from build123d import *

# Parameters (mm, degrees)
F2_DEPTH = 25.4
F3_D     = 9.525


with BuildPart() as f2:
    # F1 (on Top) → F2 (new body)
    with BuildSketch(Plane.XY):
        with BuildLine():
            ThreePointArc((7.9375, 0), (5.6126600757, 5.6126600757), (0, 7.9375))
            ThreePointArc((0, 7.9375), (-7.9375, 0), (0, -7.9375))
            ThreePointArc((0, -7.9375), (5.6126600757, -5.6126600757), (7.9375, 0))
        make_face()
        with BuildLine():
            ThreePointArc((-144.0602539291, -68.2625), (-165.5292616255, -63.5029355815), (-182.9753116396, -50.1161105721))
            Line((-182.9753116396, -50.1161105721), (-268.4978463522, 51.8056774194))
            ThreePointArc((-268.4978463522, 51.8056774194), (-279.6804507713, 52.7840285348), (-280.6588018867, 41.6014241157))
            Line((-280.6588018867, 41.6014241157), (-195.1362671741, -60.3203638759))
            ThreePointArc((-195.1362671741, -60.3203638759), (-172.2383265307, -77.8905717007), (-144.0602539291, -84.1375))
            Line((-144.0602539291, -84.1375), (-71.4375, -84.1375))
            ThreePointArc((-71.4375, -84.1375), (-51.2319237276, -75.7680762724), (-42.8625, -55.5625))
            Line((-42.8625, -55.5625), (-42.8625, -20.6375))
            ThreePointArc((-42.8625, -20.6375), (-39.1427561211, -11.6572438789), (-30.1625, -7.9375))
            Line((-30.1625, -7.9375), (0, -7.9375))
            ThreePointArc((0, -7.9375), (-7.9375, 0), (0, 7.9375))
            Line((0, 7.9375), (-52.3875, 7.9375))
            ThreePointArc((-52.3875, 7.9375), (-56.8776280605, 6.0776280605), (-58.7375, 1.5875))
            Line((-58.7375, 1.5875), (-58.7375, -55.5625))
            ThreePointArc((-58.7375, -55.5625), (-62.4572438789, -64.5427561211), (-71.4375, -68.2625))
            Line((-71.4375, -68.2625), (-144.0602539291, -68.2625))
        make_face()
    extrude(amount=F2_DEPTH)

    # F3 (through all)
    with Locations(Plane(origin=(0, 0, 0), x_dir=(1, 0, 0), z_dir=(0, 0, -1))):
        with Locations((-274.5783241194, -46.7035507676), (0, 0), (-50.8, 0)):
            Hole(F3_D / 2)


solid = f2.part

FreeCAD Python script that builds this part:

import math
import FreeCAD as App
import Part
import Sketcher
from FreeCAD import Vector
Q = App.Units.Quantity

doc = App.newDocument("Part")
params = doc.addObject("Spreadsheet::Sheet", "Params")
for row, (alias, value) in enumerate([
    ("sketch1_radius", "2 in"),
    ("sketch1_radius2", "0.5 in"),
    ("sketch1_radius3", "0.25 in"),
    ("sketch1_radius4", "0.3125 in"),
    ("sketch1_height", "2.25 in"),
    ("pad1_length", "1 in"),
    ("sketch2_diameter", "0.375 in"),
    ("hole_diameter", "0.375 in"),
], start=1):
    params.set(f"A{row}", alias)
    params.set(f"B{row}", "=" + value)
    params.setAlias(f"B{row}", alias)

body = doc.addObject("PartDesign::Body", "Body")

# Sketch on XY plane
sketch1 = body.newObject("Sketcher::SketchObject", "Sketch")
sketch1.AttachmentSupport = (doc.getObject("XY_Plane"), [""])
sketch1.MapMode = "FlatFace"
sketch1.addGeometry([
    Part.ArcOfCircle(Part.Circle(Vector(0, 0, 0), Vector(0, 0, 1), 7.9375), math.radians(0), math.radians(90)),  # 0
    Part.LineSegment(Vector(0, 7.9375, 0), Vector(-52.3875, 7.9375, 0)),  # 1
    Part.ArcOfCircle(Part.Circle(Vector(-52.3875, 1.5875, 0), Vector(0, 0, 1), 6.35), math.radians(90), math.radians(180)),  # 2
    Part.LineSegment(Vector(-58.7375, 1.5875, 0), Vector(-58.7375, -55.5625, 0)),  # 3
    Part.ArcOfCircle(Part.Circle(Vector(-71.4375, -55.5625, 0), Vector(0, 0, 1), 12.7), math.radians(-90), math.radians(0)),  # 4
    Part.LineSegment(Vector(-71.4375, -68.2625, 0), Vector(-144.060254, -68.2625, 0)),  # 5
    Part.ArcOfCircle(Part.Circle(Vector(-144.060254, -17.4625, 0), Vector(0, 0, 1), 50.8), math.radians(-140), math.radians(-90)),  # 6
    Part.LineSegment(Vector(-182.975312, -50.116111, 0), Vector(-268.497846, 51.805677, 0)),  # 7
    Part.ArcOfCircle(Part.Circle(Vector(-274.578324, 46.703551, 0), Vector(0, 0, 1), 7.9375), math.radians(40), math.radians(220)),  # 8
    Part.LineSegment(Vector(-280.658802, 41.601424, 0), Vector(-195.136267, -60.320364, 0)),  # 9
    Part.ArcOfCircle(Part.Circle(Vector(-144.060254, -17.4625, 0), Vector(0, 0, 1), 66.675), math.radians(-140), math.radians(-90)),  # 10
    Part.LineSegment(Vector(-144.060254, -84.1375, 0), Vector(-71.4375, -84.1375, 0)),  # 11
    Part.ArcOfCircle(Part.Circle(Vector(-71.4375, -55.5625, 0), Vector(0, 0, 1), 28.575), math.radians(-90), math.radians(0)),  # 12
    Part.LineSegment(Vector(-42.8625, -55.5625, 0), Vector(-42.8625, -20.6375, 0)),  # 13
    Part.ArcOfCircle(Part.Circle(Vector(-30.1625, -20.6375, 0), Vector(0, 0, 1), 12.7), math.radians(90), math.radians(180)),  # 14
    Part.LineSegment(Vector(-30.1625, -7.9375, 0), Vector(0, -7.9375, 0)),  # 15
    Part.ArcOfCircle(Part.Circle(Vector(0, 0, 0), Vector(0, 0, 1), 7.9375), math.radians(-90), math.radians(0)),  # 16
], False)
sketch1.addConstraint([
    Sketcher.Constraint("Tangent", 0, 2, 1, 1),
    Sketcher.Constraint("Tangent", 1, 2, 2, 1),
    Sketcher.Constraint("Tangent", 2, 2, 3, 1),
    Sketcher.Constraint("Tangent", 3, 2, 4, 2),
    Sketcher.Constraint("Tangent", 4, 1, 5, 1),
    Sketcher.Constraint("Tangent", 5, 2, 6, 2),
    Sketcher.Constraint("Tangent", 6, 1, 7, 1),
    Sketcher.Constraint("Tangent", 7, 2, 8, 1),
    Sketcher.Constraint("Tangent", 8, 2, 9, 1),
    Sketcher.Constraint("Tangent", 9, 2, 10, 1),
    Sketcher.Constraint("Tangent", 10, 2, 11, 1),
    Sketcher.Constraint("Tangent", 11, 2, 12, 1),
    Sketcher.Constraint("Tangent", 12, 2, 13, 1),
    Sketcher.Constraint("Tangent", 13, 2, 14, 2),
    Sketcher.Constraint("Tangent", 14, 1, 15, 1),
    Sketcher.Constraint("Tangent", 15, 2, 16, 1),
    Sketcher.Constraint("Tangent", 16, 2, 0, 1),
    Sketcher.Constraint("Horizontal", 1),
    Sketcher.Constraint("Vertical", 3),
    Sketcher.Constraint("Horizontal", 5),
    Sketcher.Constraint("Horizontal", 11),
    Sketcher.Constraint("Vertical", 13),
    Sketcher.Constraint("Horizontal", 15),
    Sketcher.Constraint("Coincident", 0, 3, -1, 1),
    Sketcher.Constraint("Coincident", 10, 3, 6, 3),
    Sketcher.Constraint("Coincident", 12, 3, 4, 3),
    Sketcher.Constraint("Equal", 0, 8),
    Sketcher.Constraint("Equal", 4, 14),
    Sketcher.Constraint("Equal", 8, 16),
    Sketcher.Constraint("PointOnObject", 16, 2, -1),
    Sketcher.Constraint("Parallel", 7, 9),
    Sketcher.Constraint("Radius", 6, Q("2 in")),
    Sketcher.Constraint("Radius", 4, Q("0.5 in")),
    Sketcher.Constraint("Radius", 2, Q("0.25 in")),
    Sketcher.Constraint("Angle", 7, Q("130 deg")),
    Sketcher.Constraint("Radius", 0, Q("0.3125 in")),
    Sketcher.Constraint("DistanceY", 3, 2, 3, 1, Q("2.25 in")),
    Sketcher.Constraint("DistanceX", 14, 1, 16, 2, Q("1.5 in")),
    Sketcher.Constraint("DistanceX", 8, 2, -1, 1, Q("280.658802 mm")),
    Sketcher.Constraint("DistanceX", 5, 2, 5, 1, Q("72.622754 mm")),
])
sketch1.setExpression("Constraints[31]", "Params.sketch1_radius")
sketch1.setExpression("Constraints[32]", "Params.sketch1_radius2")
sketch1.setExpression("Constraints[33]", "Params.sketch1_radius3")
sketch1.setExpression("Constraints[35]", "Params.sketch1_radius4")
sketch1.setExpression("Constraints[36]", "Params.sketch1_height")
pad1 = body.newObject("PartDesign::Pad", "Pad")
pad1.Profile = sketch1
pad1.setExpression("Length", "Params.pad1_length")

# Sketch on XY plane
sketch2 = body.newObject("Sketcher::SketchObject", "Sketch001")
sketch2.AttachmentSupport = (doc.getObject("XY_Plane"), [""])
sketch2.MapMode = "FlatFace"
sketch2.addGeometry([
    Part.Circle(Vector(-274.578324, 46.703551, 0), Vector(0, 0, 1), 4.7625),
    Part.Circle(Vector(0, 0, 0), Vector(0, 0, 1), 4.7625),
    Part.Circle(Vector(-50.8, 0, 0), Vector(0, 0, 1), 4.7625),
], False)
sketch2.addConstraint([
    Sketcher.Constraint("Coincident", 1, 3, -1, 1),
    Sketcher.Constraint("Equal", 0, 1),
    Sketcher.Constraint("Equal", 1, 2),
    Sketcher.Constraint("PointOnObject", 2, 3, -1),
    Sketcher.Constraint("Diameter", 0, Q("0.375 in")),
    Sketcher.Constraint("DistanceX", 2, 3, -1, 1, Q("2 in")),
    Sketcher.Constraint("DistanceY", -1, 1, 0, 3, Q("46.703551 mm")),
    Sketcher.Constraint("DistanceX", 0, 3, -1, 1, Q("274.578324 mm")),
])
sketch2.setExpression("Constraints[4]", "Params.sketch2_diameter")
doc.recompute()
hole = body.newObject("PartDesign::Hole", "Hole")
hole.Profile = sketch2
hole.ThreadType = "None"
hole.setExpression("Diameter", "Params.hole_diameter")
hole.DepthType = "ThroughAll"
hole.Reversed = True

doc.recompute()
